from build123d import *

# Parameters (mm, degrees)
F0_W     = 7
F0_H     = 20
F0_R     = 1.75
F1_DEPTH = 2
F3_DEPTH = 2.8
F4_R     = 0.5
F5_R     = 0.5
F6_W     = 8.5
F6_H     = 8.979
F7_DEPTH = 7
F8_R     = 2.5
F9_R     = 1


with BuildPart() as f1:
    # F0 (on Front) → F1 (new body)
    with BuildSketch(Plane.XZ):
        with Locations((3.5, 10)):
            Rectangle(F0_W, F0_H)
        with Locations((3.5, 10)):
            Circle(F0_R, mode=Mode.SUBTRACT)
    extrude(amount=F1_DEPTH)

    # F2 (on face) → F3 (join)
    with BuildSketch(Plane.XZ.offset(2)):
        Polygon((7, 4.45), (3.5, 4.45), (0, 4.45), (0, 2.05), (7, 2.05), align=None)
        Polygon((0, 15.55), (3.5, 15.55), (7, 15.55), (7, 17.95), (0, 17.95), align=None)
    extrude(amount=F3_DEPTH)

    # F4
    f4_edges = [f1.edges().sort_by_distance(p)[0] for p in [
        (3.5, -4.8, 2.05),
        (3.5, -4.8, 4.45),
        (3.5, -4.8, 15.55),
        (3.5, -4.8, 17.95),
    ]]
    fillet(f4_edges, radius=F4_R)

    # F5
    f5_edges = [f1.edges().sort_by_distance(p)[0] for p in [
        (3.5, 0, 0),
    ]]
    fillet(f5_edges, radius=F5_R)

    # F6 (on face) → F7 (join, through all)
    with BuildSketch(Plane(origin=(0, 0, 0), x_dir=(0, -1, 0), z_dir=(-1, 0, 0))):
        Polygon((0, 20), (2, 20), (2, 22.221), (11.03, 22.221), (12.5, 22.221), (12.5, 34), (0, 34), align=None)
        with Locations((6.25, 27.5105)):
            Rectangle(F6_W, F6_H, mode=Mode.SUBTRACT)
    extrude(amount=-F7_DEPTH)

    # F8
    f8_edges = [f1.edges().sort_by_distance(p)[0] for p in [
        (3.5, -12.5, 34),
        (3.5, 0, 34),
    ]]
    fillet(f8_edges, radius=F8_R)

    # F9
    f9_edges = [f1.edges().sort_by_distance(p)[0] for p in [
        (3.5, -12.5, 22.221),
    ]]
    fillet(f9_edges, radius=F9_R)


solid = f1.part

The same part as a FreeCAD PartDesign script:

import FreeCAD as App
import Part
import Sketcher

V = App.Vector


def edges_at(feature, points):
    """Names of the edges that pass closest to the given points."""
    edges = feature.Shape.Edges
    near = lambda p: min(range(len(edges)), key=lambda i: edges[i].distToShape(Part.Vertex(*p))[0])
    return sorted({f"Edge{near(p) + 1}" for p in points})

doc = App.newDocument("Part")
body = doc.addObject("PartDesign::Body", "Body")

# Sketch on XZ plane
sketch1 = body.newObject("Sketcher::SketchObject", "Sketch")
sketch1.AttachmentSupport = (doc.getObject("XZ_Plane"), [""])
sketch1.MapMode = "FlatFace"
sketch1.addGeometry([
    Part.LineSegment(V(0, 20, 0), V(0, 0, 0)),  # 0
    Part.LineSegment(V(0, 0, 0), V(7, 0, 0)),  # 1
    Part.LineSegment(V(7, 0, 0), V(7, 20, 0)),  # 2
    Part.LineSegment(V(7, 20, 0), V(0, 20, 0)),  # 3
    Part.Circle(V(3.5, 10, 0), V(0, 0, 1), 1.8),  # 4
], False)
sketch1.addConstraint([
    Sketcher.Constraint("Coincident", 0, 2, 1, 1),
    Sketcher.Constraint("Coincident", 1, 2, 2, 1),
    Sketcher.Constraint("Coincident", 2, 2, 3, 1),
    Sketcher.Constraint("Coincident", 3, 2, 0, 1),
    Sketcher.Constraint("Vertical", 0),
    Sketcher.Constraint("Horizontal", 1),
    Sketcher.Constraint("Vertical", 2),
    Sketcher.Constraint("Horizontal", 3),
    Sketcher.Constraint("Coincident", 0, 2, -1, 1),
    Sketcher.Constraint("Diameter", 4, 3.5),
    Sketcher.Constraint("DistanceX", 1, 1, 1, 2, 7.0),
    Sketcher.Constraint("DistanceY", 0, 2, 0, 1, 20.0),
    Sketcher.Constraint("DistanceY", -1, 1, 4, 3, 10.0),
    Sketcher.Constraint("DistanceX", -1, 1, 4, 3, 3.5),
])
pad1 = body.newObject("PartDesign::Pad", "Pad")
pad1.Profile = sketch1
pad1.Length = 2

# Sketch on XZ plane
sketch2 = body.newObject("Sketcher::SketchObject", "Sketch001")
sketch2.AttachmentSupport = (doc.getObject("XZ_Plane"), [""])
sketch2.MapMode = "FlatFace"
sketch2.AttachmentOffset = App.Placement(V(0, 0, 2), App.Rotation())
sketch2.addGeometry([
    Part.LineSegment(V(7, 4.5, 0), V(0, 4.5, 0)),  # 0
    Part.LineSegment(V(0, 4.5, 0), V(0, 2, 0)),  # 1
    Part.LineSegment(V(0, 2, 0), V(7, 2, 0)),  # 2
    Part.LineSegment(V(7, 2, 0), V(7, 4.5, 0)),  # 3
    Part.LineSegment(V(0, 15.6, 0), V(7, 15.6, 0)),  # 4
    Part.LineSegment(V(7, 15.6, 0), V(7, 17.9, 0)),  # 5
    Part.LineSegment(V(7, 17.9, 0), V(0, 17.9, 0)),  # 6
    Part.LineSegment(V(0, 17.9, 0), V(0, 15.6, 0)),  # 7
], False)
sketch2.addConstraint([
    Sketcher.Constraint("Coincident", 0, 2, 1, 1),
    Sketcher.Constraint("Coincident", 1, 2, 2, 1),
    Sketcher.Constraint("Coincident", 2, 2, 3, 1),
    Sketcher.Constraint("Coincident", 3, 2, 0, 1),
    Sketcher.Constraint("Coincident", 4, 2, 5, 1),
    Sketcher.Constraint("Coincident", 5, 2, 6, 1),
    Sketcher.Constraint("Coincident", 6, 2, 7, 1),
    Sketcher.Constraint("Coincident", 7, 2, 4, 1),
    Sketcher.Constraint("Horizontal", 0),
    Sketcher.Constraint("Vertical", 1),
    Sketcher.Constraint("Horizontal", 2),
    Sketcher.Constraint("Vertical", 3),
    Sketcher.Constraint("Horizontal", 4),
    Sketcher.Constraint("Vertical", 5),
    Sketcher.Constraint("Horizontal", 6),
    Sketcher.Constraint("Vertical", 7),
    Sketcher.Constraint("PointOnObject", 0, 2, -2),
    Sketcher.Constraint("PointOnObject", 6, 2, -2),
    Sketcher.Constraint("Vertical", 3, 2, 4, 2),
    Sketcher.Constraint("Equal", 3, 5),
    Sketcher.Constraint("DistanceX", 0, 2, 0, 1, 7.0),
    Sketcher.Constraint("DistanceY", 1, 2, 1, 1, 2.4),
    Sketcher.Constraint("DistanceY", 3, 2, 4, 2, 11.1),
    Sketcher.Constraint("DistanceY", -1, 1, 0, 2, 4.45),
])
pad2 = body.newObject("PartDesign::Pad", "Pad001")
pad2.Profile = sketch2
pad2.Length = 2.8
doc.recompute()

fillet = body.newObject("PartDesign::Fillet", "Fillet")
fillet.Base = (pad2, edges_at(pad2, [
    (3.5, -4.8, 2.05),
    (3.5, -4.8, 4.45),
    (3.5, -4.8, 15.55),
    (3.5, -4.8, 17.95),
]))
fillet.Radius = 0.5
doc.recompute()

fillet2 = body.newObject("PartDesign::Fillet", "Fillet001")
fillet2.Base = (fillet, edges_at(fillet, [(3.5, 0, 0)]))
fillet2.Radius = 0.5

# Sketch on YZ plane
sketch3 = body.newObject("Sketcher::SketchObject", "Sketch002")
sketch3.AttachmentSupport = (doc.getObject("YZ_Plane"), [""])
sketch3.MapMode = "FlatFace"
sketch3.addGeometry([
    Part.LineSegment(V(0, 20, 0), V(-2, 20, 0)),  # 0
    Part.LineSegment(V(-2, 20, 0), V(-2, 22.2, 0)),  # 1
    Part.LineSegment(V(-2, 22.2, 0), V(-12.5, 22.2, 0)),  # 2
    Part.LineSegment(V(-12.5, 22.2, 0), V(-12.5, 34, 0)),  # 3
    Part.LineSegment(V(-12.5, 34, 0), V(0, 34, 0)),  # 4
    Part.LineSegment(V(0, 34, 0), V(0, 20, 0)),  # 5
    Part.LineSegment(V(-10.5, 23, 0), V(-2, 23, 0)),  # 6
    Part.LineSegment(V(-2, 23, 0), V(-2, 32, 0)),  # 7
    Part.LineSegment(V(-2, 32, 0), V(-10.5, 32, 0)),  # 8
    Part.LineSegment(V(-10.5, 32, 0), V(-10.5, 23, 0)),  # 9
], False)
sketch3.addConstraint([
    Sketcher.Constraint("Coincident", 0, 2, 1, 1),
    Sketcher.Constraint("Coincident", 1, 2, 2, 1),
    Sketcher.Constraint("Coincident", 2, 2, 3, 1),
    Sketcher.Constraint("Coincident", 3, 2, 4, 1),
    Sketcher.Constraint("Coincident", 4, 2, 5, 1),
    Sketcher.Constraint("Coincident", 5, 2, 0, 1),
    Sketcher.Constraint("Coincident", 6, 2, 7, 1),
    Sketcher.Constraint("Coincident", 7, 2, 8, 1),
    Sketcher.Constraint("Coincident", 8, 2, 9, 1),
    Sketcher.Constraint("Coincident", 9, 2, 6, 1),
    Sketcher.Constraint("Horizontal", 0),
    Sketcher.Constraint("Vertical", 1),
    Sketcher.Constraint("Horizontal", 2),
    Sketcher.Constraint("Vertical", 3),
    Sketcher.Constraint("Horizontal", 4),
    Sketcher.Constraint("Vertical", 5),
    Sketcher.Constraint("Horizontal", 6),
    Sketcher.Constraint("Vertical", 7),
    Sketcher.Constraint("Horizontal", 8),
    Sketcher.Constraint("Vertical", 9),
    Sketcher.Constraint("PointOnObject", 4, 2, -2),
    Sketcher.Constraint("Vertical", 1, 2, 6, 2),
    Sketcher.Constraint("DistanceX", 0, 2, 0, 1, 2.0),
    Sketcher.Constraint("DistanceY", 5, 2, 5, 1, 14.0),
    Sketcher.Constraint("DistanceX", 2, 2, 2, 1, 10.5),
    Sketcher.Constraint("DistanceX", 6, 1, 6, 2, 8.5),
    Sketcher.Constraint("DistanceY", -1, 1, 0, 2, 20.0),
    Sketcher.Constraint("DistanceY", -1, 1, 7, 2, 32.0),
    Sketcher.Constraint("DistanceY", 1, 2, 6, 2, 0.8),
    Sketcher.Constraint("DistanceY", 1, 1, 1, 2, 2.221),
])
pad3 = body.newObject("PartDesign::Pad", "Pad002")
pad3.Profile = sketch3
pad3.Length = 7
doc.recompute()

fillet3 = body.newObject("PartDesign::Fillet", "Fillet002")
fillet3.Base = (pad3, edges_at(pad3, [(3.5, -12.5, 34), (3.5, 0, 34)]))
fillet3.Radius = 2.5
doc.recompute()

fillet4 = body.newObject("PartDesign::Fillet", "Fillet003")
fillet4.Base = (fillet3, edges_at(fillet3, [(3.5, -12.5, 22.221)]))
fillet4.Radius = 1

doc.recompute()
